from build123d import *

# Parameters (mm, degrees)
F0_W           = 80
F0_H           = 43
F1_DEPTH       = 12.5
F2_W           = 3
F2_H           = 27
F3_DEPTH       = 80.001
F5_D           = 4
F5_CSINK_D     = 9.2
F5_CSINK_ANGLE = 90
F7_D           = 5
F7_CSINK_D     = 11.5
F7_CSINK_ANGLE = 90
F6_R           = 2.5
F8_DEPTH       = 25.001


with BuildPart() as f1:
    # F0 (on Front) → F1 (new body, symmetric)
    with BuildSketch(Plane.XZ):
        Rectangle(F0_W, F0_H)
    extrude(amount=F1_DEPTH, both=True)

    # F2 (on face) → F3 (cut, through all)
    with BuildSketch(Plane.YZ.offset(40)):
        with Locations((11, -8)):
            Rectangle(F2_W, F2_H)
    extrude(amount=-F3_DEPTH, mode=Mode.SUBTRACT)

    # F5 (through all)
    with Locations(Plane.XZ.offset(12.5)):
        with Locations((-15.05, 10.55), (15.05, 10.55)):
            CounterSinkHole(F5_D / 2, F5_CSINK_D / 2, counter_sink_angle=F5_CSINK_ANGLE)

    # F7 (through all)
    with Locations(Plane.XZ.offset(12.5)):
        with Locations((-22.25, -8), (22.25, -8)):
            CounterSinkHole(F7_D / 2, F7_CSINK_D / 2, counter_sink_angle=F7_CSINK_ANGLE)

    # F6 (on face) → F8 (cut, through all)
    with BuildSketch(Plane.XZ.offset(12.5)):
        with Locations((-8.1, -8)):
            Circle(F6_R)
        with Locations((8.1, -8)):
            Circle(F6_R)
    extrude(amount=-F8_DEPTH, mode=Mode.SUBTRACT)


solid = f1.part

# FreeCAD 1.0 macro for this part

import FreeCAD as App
import Part
import Sketcher

V = App.Vector
Q = App.Units.Quantity


def add_polygon(sketch, points):
    """Adds a closed chain of lines whose ends are joined by coincident constraints."""
    first, n = sketch.GeometryCount, len(points)
    for a, b in zip(points, points[1:] + points[:1]):
        sketch.addGeometry(Part.LineSegment(App.Vector(*a, 0), App.Vector(*b, 0)), False)
    for i in range(n):
        sketch.addConstraint(Sketcher.Constraint("Coincident", first + i, 2, first + (i + 1) % n, 1))

doc = App.newDocument("Part")
body = doc.addObject("PartDesign::Body", "Body")

# Sketch on XZ plane
sketch1 = body.newObject("Sketcher::SketchObject", "Sketch")
sketch1.AttachmentSupport = (doc.getObject("XZ_Plane"), [""])
sketch1.MapMode = "FlatFace"
add_polygon(sketch1, [(-40, 22), (-40, -22), (40, -22), (40, 22)])  # lines 0-3
sketch1.addConstraint(Sketcher.Constraint("Vertical", 0))
sketch1.addConstraint(Sketcher.Constraint("Horizontal", 1))
sketch1.addConstraint(Sketcher.Constraint("Vertical", 2))
sketch1.addConstraint(Sketcher.Constraint("Horizontal", 3))
sketch1.addConstraint(Sketcher.Constraint("Symmetric", 0, 2, 2, 2, -1, 1))
sketch1.addConstraint(Sketcher.Constraint("DistanceX", 1, 1, 1, 2, Q("80 mm")))
sketch1.addConstraint(Sketcher.Constraint("DistanceY", 0, 2, 0, 1, Q("43 mm")))
pad1 = body.newObject("PartDesign::Pad", "Pad")
pad1.Profile = sketch1
pad1.Length = 25
pad1.Midplane = True

# Sketch on YZ plane
sketch2 = body.newObject("Sketcher::SketchObject", "Sketch001")
sketch2.AttachmentSupport = (doc.getObject("YZ_Plane"), [""])
sketch2.MapMode = "FlatFace"
sketch2.AttachmentOffset = App.Placement(V(0, 0, 40), App.Rotation())
add_polygon(sketch2, [(9.5, 5.5), (9.5, -21.5), (12.5, -21.5), (12.5, 5.5)])  # lines 0-3
sketch2.addConstraint(Sketcher.Constraint("Vertical", 0))
sketch2.addConstraint(Sketcher.Constraint("Horizontal", 1))
sketch2.addConstraint(Sketcher.Constraint("Vertical", 2))
sketch2.addConstraint(Sketcher.Constraint("Horizontal", 3))
sketch2.addConstraint(Sketcher.Constraint("DistanceX", 1, 1, 1, 2, Q("3 mm")))
sketch2.addConstraint(Sketcher.Constraint("DistanceY", 0, 2, 0, 1, Q("27 mm")))
sketch2.addConstraint(Sketcher.Constraint("DistanceX", -1, 1, 0, 2, Q("9.5 mm")))
sketch2.addConstraint(Sketcher.Constraint("DistanceY", 0, 2, -1, 1, Q("21.5 mm")))
pocket1 = body.newObject("PartDesign::Pocket", "Pocket")
pocket1.Profile = sketch2
pocket1.Type = "ThroughAll"

# Sketch on XZ plane
sketch3 = body.newObject("Sketcher::SketchObject", "Sketch002")
sketch3.AttachmentSupport = (doc.getObject("XZ_Plane"), [""])
sketch3.MapMode = "FlatFace"
sketch3.AttachmentOffset = App.Placement(V(0, 0, 12.5), App.Rotation())
sketch3.addGeometry(Part.Circle(V(-15.1, 10.6, 0), V(0, 0, 1), 2), False)
sketch3.addGeometry(Part.Circle(V(15.1, 10.6, 0), V(0, 0, 1), 2), False)
sketch3.addConstraint(Sketcher.Constraint("Equal", 0, 1))
sketch3.addConstraint(Sketcher.Constraint("Symmetric", 0, 3, 1, 3, -2))
sketch3.addConstraint(Sketcher.Constraint("Diameter", 0, Q("4 mm")))
sketch3.addConstraint(Sketcher.Constraint("DistanceX", 0, 3, 1, 3, Q("30.1 mm")))
sketch3.addConstraint(Sketcher.Constraint("DistanceY", -1, 1, 0, 3, Q("10.55 mm")))
doc.recompute()
hole = body.newObject("PartDesign::Hole", "Hole")
hole.Profile = sketch3
hole.ThreadType = "None"
hole.Diameter = 4
hole.DepthType = "ThroughAll"
hole.HoleCutType = "Countersink"
hole.HoleCutDiameter = 9.2
hole.HoleCutCountersinkAngle = 90

# Sketch on XZ plane
sketch4 = body.newObject("Sketcher::SketchObject", "Sketch003")
sketch4.AttachmentSupport = (doc.getObject("XZ_Plane"), [""])
sketch4.MapMode = "FlatFace"
sketch4.AttachmentOffset = App.Placement(V(0, 0, 12.5), App.Rotation())
sketch4.addGeometry(Part.Circle(V(-22.2, -8, 0), V(0, 0, 1), 2.5), False)
sketch4.addGeometry(Part.Circle(V(22.2, -8, 0), V(0, 0, 1), 2.5), False)
sketch4.addConstraint(Sketcher.Constraint("Equal", 0, 1))
sketch4.addConstraint(Sketcher.Constraint("Symmetric", 0, 3, 1, 3, -2))
sketch4.addConstraint(Sketcher.Constraint("Diameter", 0, Q("5 mm")))
sketch4.addConstraint(Sketcher.Constraint("DistanceY", 0, 3, -1, 1, Q("8 mm")))
sketch4.addConstraint(Sketcher.Constraint("DistanceX", 0, 3, 1, 3, Q("44.5 mm")))
doc.recompute()
hole2 = body.newObject("PartDesign::Hole", "Hole001")
hole2.Profile = sketch4
hole2.ThreadType = "None"
hole2.Diameter = 5
hole2.DepthType = "ThroughAll"
hole2.HoleCutType = "Countersink"
hole2.HoleCutDiameter = 11.5
hole2.HoleCutCountersinkAngle = 90

# Sketch on XZ plane
sketch5 = body.newObject("Sketcher::SketchObject", "Sketch004")
sketch5.AttachmentSupport = (doc.getObject("XZ_Plane"), [""])
sketch5.MapMode = "FlatFace"
sketch5.AttachmentOffset = App.Placement(V(0, 0, 12.5), App.Rotation())
sketch5.addGeometry(Part.Circle(V(-8.1, -8, 0), V(0, 0, 1), 2.5), False)
sketch5.addGeometry(Part.Circle(V(8.1, -8, 0), V(0, 0, 1), 2.5), False)
sketch5.addConstraint(Sketcher.Constraint("Equal", 0, 1))
sketch5.addConstraint(Sketcher.Constraint("Symmetric", 0, 3, 1, 3, -2))
sketch5.addConstraint(Sketcher.Constraint("Diameter", 0, Q("5 mm")))
sketch5.addConstraint(Sketcher.Constraint("DistanceY", 0, 3, -1, 1, Q("8 mm")))
sketch5.addConstraint(Sketcher.Constraint("DistanceX", 0, 3, -1, 1, Q("8.1 mm")))
pocket2 = body.newObject("PartDesign::Pocket", "Pocket001")
pocket2.Profile = sketch5
pocket2.Type = "ThroughAll"

doc.recompute()
